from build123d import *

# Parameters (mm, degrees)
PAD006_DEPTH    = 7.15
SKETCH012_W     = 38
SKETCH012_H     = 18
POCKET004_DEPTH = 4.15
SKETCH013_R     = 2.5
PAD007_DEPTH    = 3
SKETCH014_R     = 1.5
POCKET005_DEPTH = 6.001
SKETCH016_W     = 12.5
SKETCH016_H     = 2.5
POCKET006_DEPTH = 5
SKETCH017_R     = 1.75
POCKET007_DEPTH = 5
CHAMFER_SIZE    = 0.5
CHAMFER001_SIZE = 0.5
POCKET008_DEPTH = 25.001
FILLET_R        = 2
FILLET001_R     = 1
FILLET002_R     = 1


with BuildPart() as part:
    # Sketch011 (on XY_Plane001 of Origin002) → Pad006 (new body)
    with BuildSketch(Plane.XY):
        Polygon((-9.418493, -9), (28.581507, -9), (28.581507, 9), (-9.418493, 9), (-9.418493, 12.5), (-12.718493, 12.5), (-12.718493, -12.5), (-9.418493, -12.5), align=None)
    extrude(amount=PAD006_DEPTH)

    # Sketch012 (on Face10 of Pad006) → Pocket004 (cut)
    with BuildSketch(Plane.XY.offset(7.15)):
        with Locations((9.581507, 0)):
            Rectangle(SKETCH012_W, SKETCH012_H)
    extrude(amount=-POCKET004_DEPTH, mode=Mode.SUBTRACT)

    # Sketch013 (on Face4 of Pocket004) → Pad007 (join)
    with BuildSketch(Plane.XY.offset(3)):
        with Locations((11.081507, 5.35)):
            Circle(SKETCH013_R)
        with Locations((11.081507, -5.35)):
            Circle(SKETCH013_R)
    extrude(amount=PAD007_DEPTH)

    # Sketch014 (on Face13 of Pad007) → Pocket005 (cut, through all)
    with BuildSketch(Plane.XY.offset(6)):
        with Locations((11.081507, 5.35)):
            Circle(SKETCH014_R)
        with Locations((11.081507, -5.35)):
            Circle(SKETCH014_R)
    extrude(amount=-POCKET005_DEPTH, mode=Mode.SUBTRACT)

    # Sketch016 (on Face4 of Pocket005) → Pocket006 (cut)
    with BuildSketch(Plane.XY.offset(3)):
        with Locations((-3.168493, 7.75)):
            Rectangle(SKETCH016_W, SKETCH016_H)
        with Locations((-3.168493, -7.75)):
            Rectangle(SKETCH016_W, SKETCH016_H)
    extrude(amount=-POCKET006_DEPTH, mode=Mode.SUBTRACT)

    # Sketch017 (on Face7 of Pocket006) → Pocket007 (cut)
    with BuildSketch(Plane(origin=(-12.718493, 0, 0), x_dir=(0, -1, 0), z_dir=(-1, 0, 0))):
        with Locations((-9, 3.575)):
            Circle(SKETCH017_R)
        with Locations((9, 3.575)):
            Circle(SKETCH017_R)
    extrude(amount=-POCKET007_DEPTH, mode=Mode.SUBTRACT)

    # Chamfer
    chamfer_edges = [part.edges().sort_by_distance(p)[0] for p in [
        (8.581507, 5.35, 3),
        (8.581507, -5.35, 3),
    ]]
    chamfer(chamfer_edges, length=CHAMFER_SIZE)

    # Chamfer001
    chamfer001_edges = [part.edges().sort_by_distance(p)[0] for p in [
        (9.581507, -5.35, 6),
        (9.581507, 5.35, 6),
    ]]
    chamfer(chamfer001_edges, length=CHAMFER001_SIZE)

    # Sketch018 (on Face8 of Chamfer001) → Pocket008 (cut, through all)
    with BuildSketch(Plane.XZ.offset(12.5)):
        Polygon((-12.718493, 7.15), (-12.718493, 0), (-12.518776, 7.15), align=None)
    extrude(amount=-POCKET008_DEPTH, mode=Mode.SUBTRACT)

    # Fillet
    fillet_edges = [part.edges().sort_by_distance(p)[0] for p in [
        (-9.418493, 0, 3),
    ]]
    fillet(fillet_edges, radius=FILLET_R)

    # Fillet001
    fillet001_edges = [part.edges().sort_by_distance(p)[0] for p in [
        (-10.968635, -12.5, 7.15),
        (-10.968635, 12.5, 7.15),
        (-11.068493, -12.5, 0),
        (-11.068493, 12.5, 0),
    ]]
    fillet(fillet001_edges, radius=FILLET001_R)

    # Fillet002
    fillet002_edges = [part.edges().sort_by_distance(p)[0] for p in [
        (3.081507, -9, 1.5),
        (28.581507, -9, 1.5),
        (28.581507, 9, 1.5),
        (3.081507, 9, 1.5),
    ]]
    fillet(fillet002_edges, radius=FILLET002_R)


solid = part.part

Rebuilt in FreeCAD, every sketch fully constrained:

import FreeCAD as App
import Part
import Sketcher

V = App.Vector
Q = App.Units.Quantity


def edges_at(feature, points):
    """Names of the edges that pass closest to the given points."""
    edges = feature.Shape.Edges
    near = lambda p: min(range(len(edges)), key=lambda i: edges[i].distToShape(Part.Vertex(*p))[0])
    return sorted({f"Edge{near(p) + 1}" for p in points})


def add_polygon(sketch, points):
    """Adds a closed chain of lines whose ends are joined by coincident constraints."""
    first, n = sketch.GeometryCount, len(points)
    for a, b in zip(points, points[1:] + points[:1]):
        sketch.addGeometry(Part.LineSegment(App.Vector(*a, 0), App.Vector(*b, 0)), False)
    for i in range(n):
        sketch.addConstraint(Sketcher.Constraint("Coincident", first + i, 2, first + (i + 1) % n, 1))

doc = App.newDocument("Part")
body = doc.addObject("PartDesign::Body", "Body")

sketch1 = body.newObject("Sketcher::SketchObject", "Sketch")
sketch1.AttachmentSupport = (doc.getObject("XY_Plane"), [""])
sketch1.MapMode = "FlatFace"
add_polygon(sketch1, [(-9.4, -9), (28.6, -9), (28.6, 9), (-9.4, 9), (-9.4, 12.5), (-12.7, 12.5), (-12.7, -12.5), (-9.4, -12.5)])
sketch1.addConstraint([
    Sketcher.Constraint("Horizontal", 0),
    Sketcher.Constraint("Vertical", 1),
    Sketcher.Constraint("Horizontal", 2),
    Sketcher.Constraint("Vertical", 3),
    Sketcher.Constraint("Horizontal", 4),
    Sketcher.Constraint("Vertical", 5),
    Sketcher.Constraint("Horizontal", 6),
    Sketcher.Constraint("Vertical", 7),
    Sketcher.Constraint("Symmetric", 3, 2, 6, 2, -1),
    Sketcher.Constraint("Equal", 3, 7),
    Sketcher.Constraint("DistanceX", 0, 1, 0, 2, 38.0),
    Sketcher.Constraint("DistanceY", 1, 1, 1, 2, 18.0),
    Sketcher.Constraint("DistanceY", 5, 2, 5, 1, 25.0),
    Sketcher.Constraint("DistanceX", 4, 2, 4, 1, 3.3),
    Sketcher.Constraint("DistanceX", -1, 1, 0, 2, 28.581507),
])
pad1 = body.newObject("PartDesign::Pad", "Pad")
pad1.Profile = sketch1
pad1.Length = 7.15

sketch2 = body.newObject("Sketcher::SketchObject", "Sketch001")
sketch2.AttachmentSupport = (doc.getObject("XY_Plane"), [""])
sketch2.MapMode = "FlatFace"
sketch2.AttachmentOffset = App.Placement(V(0, 0, 7.15), App.Rotation())
add_polygon(sketch2, [(-9, 9), (-9, -9), (29, -9), (29, 9)])
sketch2.addConstraint([
    Sketcher.Constraint("Vertical", 0),
    Sketcher.Constraint("Horizontal", 1),
    Sketcher.Constraint("Vertical", 2),
    Sketcher.Constraint("Horizontal", 3),
    Sketcher.Constraint("DistanceX", 1, 1, 1, 2, 38.0),
    Sketcher.Constraint("DistanceY", 0, 2, 0, 1, 18.0),
    Sketcher.Constraint("DistanceY", 0, 2, -1, 1, 9.0),
    Sketcher.Constraint("DistanceX", 0, 2, -1, 1, 9.418493),
])
pocket1 = body.newObject("PartDesign::Pocket", "Pocket")
pocket1.Profile = sketch2
pocket1.Length = 4.15

sketch3 = body.newObject("Sketcher::SketchObject", "Sketch002")
sketch3.AttachmentSupport = (doc.getObject("XY_Plane"), [""])
sketch3.MapMode = "FlatFace"
sketch3.AttachmentOffset = App.Placement(V(0, 0, 3), App.Rotation())
sketch3.addGeometry([
    Part.Circle(V(11.1, 5.3, 0), V(0, 0, 1), 2.5),
    Part.Circle(V(11.1, -5.3, 0), V(0, 0, 1), 2.5),
], False)
sketch3.addConstraint([
    Sketcher.Constraint("Equal", 0, 1),
    Sketcher.Constraint("Symmetric", 0, 3, 1, 3, -1),
    Sketcher.Constraint("Diameter", 0, 5.0),
    Sketcher.Constraint("DistanceY", 1, 3, 0, 3, 10.7),
    Sketcher.Constraint("DistanceX", -1, 1, 0, 3, 11.081507),
])
pad2 = body.newObject("PartDesign::Pad", "Pad001")
pad2.Profile = sketch3
pad2.Length = 3

sketch4 = body.newObject("Sketcher::SketchObject", "Sketch003")
sketch4.AttachmentSupport = (doc.getObject("XY_Plane"), [""])
sketch4.MapMode = "FlatFace"
sketch4.AttachmentOffset = App.Placement(V(0, 0, 6), App.Rotation())
sketch4.addGeometry([
    Part.Circle(V(11.1, 5.3, 0), V(0, 0, 1), 1.5),
    Part.Circle(V(11.1, -5.3, 0), V(0, 0, 1), 1.5),
], False)
sketch4.addConstraint([
    Sketcher.Constraint("Equal", 0, 1),
    Sketcher.Constraint("Symmetric", 0, 3, 1, 3, -1),
    Sketcher.Constraint("Diameter", 0, 3.0),
    Sketcher.Constraint("DistanceY", 1, 3, 0, 3, 10.7),
    Sketcher.Constraint("DistanceX", -1, 1, 0, 3, 11.081507),
])
pocket2 = body.newObject("PartDesign::Pocket", "Pocket001")
pocket2.Profile = sketch4
pocket2.Type = "ThroughAll"

sketch5 = body.newObject("Sketcher::SketchObject", "Sketch004")
sketch5.AttachmentSupport = (doc.getObject("XY_Plane"), [""])
sketch5.MapMode = "FlatFace"
sketch5.AttachmentOffset = App.Placement(V(0, 0, 3), App.Rotation())
add_polygon(sketch5, [(-9.4, 9), (-9.4, 6.5), (3.1, 6.5), (3.1, 9)])
add_polygon(sketch5, [(-9.4, -6.5), (-9.4, -9), (3.1, -9), (3.1, -6.5)])
sketch5.addConstraint([
    Sketcher.Constraint("Vertical", 0),
    Sketcher.Constraint("Horizontal", 1),
    Sketcher.Constraint("Vertical", 2),
    Sketcher.Constraint("Horizontal", 3),
    Sketcher.Constraint("Vertical", 4),
    Sketcher.Constraint("Horizontal", 5),
    Sketcher.Constraint("Vertical", 6),
    Sketcher.Constraint("Horizontal", 7),
    Sketcher.Constraint("Symmetric", 3, 2, 4, 2, -1),
    Sketcher.Constraint("Symmetric", 1, 2, 6, 2, -1),
    Sketcher.Constraint("DistanceX", 1, 1, 1, 2, 12.5),
    Sketcher.Constraint("DistanceY", 0, 2, 0, 1, 2.5),
    Sketcher.Constraint("DistanceY", -1, 1, 2, 2, 9.0),
    Sketcher.Constraint("DistanceX", 0, 2, -1, 1, 9.418493),
])
pocket3 = body.newObject("PartDesign::Pocket", "Pocket002")
pocket3.Profile = sketch5
pocket3.Length = 5

sketch6 = body.newObject("Sketcher::SketchObject", "Sketch005")
sketch6.AttachmentSupport = (doc.getObject("YZ_Plane"), [""])
sketch6.MapMode = "FlatFace"
sketch6.AttachmentOffset = App.Placement(V(0, 0, -12.718493), App.Rotation())
sketch6.addGeometry([
    Part.Circle(V(9, 3.6, 0), V(0, 0, 1), 1.8),
    Part.Circle(V(-9, 3.6, 0), V(0, 0, 1), 1.8),
], False)
sketch6.addConstraint([
    Sketcher.Constraint("Equal", 0, 1),
    Sketcher.Constraint("Symmetric", 0, 3, 1, 3, -2),
    Sketcher.Constraint("Diameter", 0, 3.5),
    Sketcher.Constraint("DistanceX", -1, 1, 0, 3, 9.0),
    Sketcher.Constraint("DistanceY", -1, 1, 0, 3, 3.575),
])
pocket4 = body.newObject("PartDesign::Pocket", "Pocket003")
pocket4.Profile = sketch6
pocket4.Length = 5
pocket4.Reversed = True
doc.recompute()

chamfer = body.newObject("PartDesign::Chamfer", "Chamfer")
chamfer.Base = (pocket4, edges_at(pocket4, [(8.582, 5.35, 3), (8.582, -5.35, 3)]))
chamfer.Size = 0.5
doc.recompute()

chamfer2 = body.newObject("PartDesign::Chamfer", "Chamfer001")
chamfer2.Base = (chamfer, edges_at(chamfer, [(9.582, -5.35, 6), (9.582, 5.35, 6)]))
chamfer2.Size = 0.5

sketch7 = body.newObject("Sketcher::SketchObject", "Sketch006")
sketch7.AttachmentSupport = (doc.getObject("XZ_Plane"), [""])
sketch7.MapMode = "FlatFace"
sketch7.AttachmentOffset = App.Placement(V(0, 0, 12.5), App.Rotation())
add_polygon(sketch7, [(-12.72, 7.15), (-12.72, 0), (-12.52, 7.15)])
sketch7.addConstraint([
    Sketcher.Constraint("Vertical", 0),
    Sketcher.Constraint("Horizontal", 2),
    Sketcher.Constraint("PointOnObject", 0, 2, -1),
    Sketcher.Constraint("Angle", 1, Q("88.400005 deg")),
    Sketcher.Constraint("DistanceY", 0, 2, 0, 1, 7.15),
    Sketcher.Constraint("DistanceX", 0, 2, -1, 1, 12.718493),
])
pocket5 = body.newObject("PartDesign::Pocket", "Pocket004")
pocket5.Profile = sketch7
pocket5.Type = "ThroughAll"
doc.recompute()

fillet = body.newObject("PartDesign::Fillet", "Fillet")
fillet.Base = (pocket5, edges_at(pocket5, [(-9.418, 0, 3)]))
fillet.Radius = 2
doc.recompute()

fillet2 = body.newObject("PartDesign::Fillet", "Fillet001")
fillet2.Base = (fillet, edges_at(fillet, [
    (-10.969, -12.5, 7.15),
    (-10.969, 12.5, 7.15),
    (-11.068, -12.5, 0),
    (-11.068, 12.5, 0),
]))
fillet2.Radius = 1
doc.recompute()

fillet3 = body.newObject("PartDesign::Fillet", "Fillet002")
fillet3.Base = (fillet2, edges_at(fillet2, [
    (3.082, -9, 1.5),
    (28.582, -9, 1.5),
    (28.582, 9, 1.5),
    (3.082, 9, 1.5),
]))
fillet3.Radius = 1

doc.recompute()
